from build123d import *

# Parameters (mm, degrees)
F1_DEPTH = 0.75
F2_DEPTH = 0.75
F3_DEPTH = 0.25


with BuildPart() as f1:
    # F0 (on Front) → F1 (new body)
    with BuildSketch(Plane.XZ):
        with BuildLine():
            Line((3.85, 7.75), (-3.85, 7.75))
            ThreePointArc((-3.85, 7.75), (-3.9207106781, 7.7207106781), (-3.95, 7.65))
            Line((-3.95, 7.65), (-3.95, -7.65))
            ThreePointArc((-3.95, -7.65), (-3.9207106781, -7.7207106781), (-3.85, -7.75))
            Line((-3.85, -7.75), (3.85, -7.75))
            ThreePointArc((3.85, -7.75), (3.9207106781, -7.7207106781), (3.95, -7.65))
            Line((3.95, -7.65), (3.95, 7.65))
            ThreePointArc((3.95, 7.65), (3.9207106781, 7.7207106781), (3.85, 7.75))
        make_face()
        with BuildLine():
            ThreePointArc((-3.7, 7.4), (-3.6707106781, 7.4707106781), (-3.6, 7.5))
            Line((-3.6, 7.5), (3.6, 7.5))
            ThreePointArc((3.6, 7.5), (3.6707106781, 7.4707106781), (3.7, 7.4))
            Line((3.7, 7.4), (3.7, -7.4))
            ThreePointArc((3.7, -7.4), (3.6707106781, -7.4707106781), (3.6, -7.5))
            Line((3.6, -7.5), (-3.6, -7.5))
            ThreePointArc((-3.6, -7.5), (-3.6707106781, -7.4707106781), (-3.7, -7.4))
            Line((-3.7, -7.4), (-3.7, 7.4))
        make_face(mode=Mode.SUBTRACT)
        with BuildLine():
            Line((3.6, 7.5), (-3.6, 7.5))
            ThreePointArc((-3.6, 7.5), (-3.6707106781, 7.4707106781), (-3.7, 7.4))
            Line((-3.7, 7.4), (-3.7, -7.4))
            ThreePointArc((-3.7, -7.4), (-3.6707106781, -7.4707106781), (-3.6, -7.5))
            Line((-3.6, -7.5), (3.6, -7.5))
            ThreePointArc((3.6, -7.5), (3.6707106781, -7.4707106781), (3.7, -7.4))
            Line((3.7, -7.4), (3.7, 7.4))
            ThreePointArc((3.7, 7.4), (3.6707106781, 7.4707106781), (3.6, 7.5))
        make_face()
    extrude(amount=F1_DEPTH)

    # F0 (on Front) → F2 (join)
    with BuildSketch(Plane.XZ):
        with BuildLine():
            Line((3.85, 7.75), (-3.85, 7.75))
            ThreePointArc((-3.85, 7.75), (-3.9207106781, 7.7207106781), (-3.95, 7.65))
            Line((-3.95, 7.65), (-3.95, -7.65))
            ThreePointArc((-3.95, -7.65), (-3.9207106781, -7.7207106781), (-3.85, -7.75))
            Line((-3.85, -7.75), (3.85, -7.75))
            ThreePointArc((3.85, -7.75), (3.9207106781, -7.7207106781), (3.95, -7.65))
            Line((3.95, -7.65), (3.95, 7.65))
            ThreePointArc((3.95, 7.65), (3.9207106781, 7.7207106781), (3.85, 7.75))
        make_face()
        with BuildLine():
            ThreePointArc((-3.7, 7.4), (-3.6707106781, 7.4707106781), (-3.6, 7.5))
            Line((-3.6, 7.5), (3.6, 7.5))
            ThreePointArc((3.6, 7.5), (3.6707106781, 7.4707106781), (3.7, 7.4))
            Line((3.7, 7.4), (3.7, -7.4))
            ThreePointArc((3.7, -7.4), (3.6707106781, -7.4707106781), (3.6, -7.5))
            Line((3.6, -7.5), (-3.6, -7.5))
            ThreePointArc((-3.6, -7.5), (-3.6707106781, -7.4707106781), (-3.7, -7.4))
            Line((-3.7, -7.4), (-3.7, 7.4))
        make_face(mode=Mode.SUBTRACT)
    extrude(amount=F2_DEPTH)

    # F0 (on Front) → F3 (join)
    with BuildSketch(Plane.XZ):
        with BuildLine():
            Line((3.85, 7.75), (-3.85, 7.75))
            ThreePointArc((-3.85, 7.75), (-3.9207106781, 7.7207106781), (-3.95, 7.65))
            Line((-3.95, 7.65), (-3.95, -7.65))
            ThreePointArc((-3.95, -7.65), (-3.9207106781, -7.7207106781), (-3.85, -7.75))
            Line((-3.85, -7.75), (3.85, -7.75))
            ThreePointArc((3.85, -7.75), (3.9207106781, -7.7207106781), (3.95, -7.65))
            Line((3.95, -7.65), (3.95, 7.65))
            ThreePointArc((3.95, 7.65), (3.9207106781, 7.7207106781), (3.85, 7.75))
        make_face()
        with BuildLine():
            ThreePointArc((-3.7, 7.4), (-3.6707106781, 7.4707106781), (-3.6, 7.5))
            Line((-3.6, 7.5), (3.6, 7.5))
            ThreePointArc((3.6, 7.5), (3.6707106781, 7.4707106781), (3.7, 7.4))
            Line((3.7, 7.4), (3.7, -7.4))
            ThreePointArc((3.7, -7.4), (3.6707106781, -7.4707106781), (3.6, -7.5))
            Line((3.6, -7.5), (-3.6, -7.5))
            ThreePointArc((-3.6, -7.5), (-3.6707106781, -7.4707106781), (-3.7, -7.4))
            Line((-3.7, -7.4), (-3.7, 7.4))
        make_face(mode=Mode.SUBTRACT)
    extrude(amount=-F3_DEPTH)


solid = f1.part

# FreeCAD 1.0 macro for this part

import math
import FreeCAD as App
import Part
import Sketcher
Q = App.Units.Quantity

doc = App.newDocument("Part")
params = doc.addObject("Spreadsheet::Sheet", "Params")
for row, (alias, value) in enumerate([
    ("sketch1_radius", "0.1 mm"),
    ("sketch1_width", "7.7 mm"),
    ("sketch1_height", "15.3 mm"),
    ("pad1_length", "0.75 mm"),
    ("sketch2_radius", "0.1 mm"),
    ("sketch2_width", "7.7 mm"),
    ("sketch2_width2", "7.2 mm"),
    ("sketch2_height", "15.3 mm"),
    ("sketch2_height2", "14.8 mm"),
    ("pad2_length", "0.75 mm"),
    ("sketch3_radius", "0.1 mm"),
    ("sketch3_width", "7.7 mm"),
    ("sketch3_width2", "7.2 mm"),
    ("sketch3_height", "15.3 mm"),
    ("sketch3_height2", "14.8 mm"),
    ("pad3_length", "0.25 mm"),
], start=1):
    params.set(f"A{row}", alias)
    params.set(f"B{row}", "=" + value)
    params.setAlias(f"B{row}", alias)

body = doc.addObject("PartDesign::Body", "Body")

# Sketch on XZ plane
sketch1 = doc.addObject("Sketcher::SketchObject", "Sketch")
body.addObject(sketch1)
sketch1.AttachmentSupport = (doc.XZ_Plane, [""])
sketch1.MapMode = "FlatFace"
sketch1.addGeometry(Part.LineSegment(App.Vector(3.85, 7.75, 0), App.Vector(-3.85, 7.75, 0)), False)
sketch1.addGeometry(Part.ArcOfCircle(Part.Circle(App.Vector(-3.85, 7.65, 0), App.Vector(0, 0, 1), 0.1), math.radians(90), math.radians(180)), False)
sketch1.addGeometry(Part.LineSegment(App.Vector(-3.95, 7.65, 0), App.Vector(-3.95, -7.65, 0)), False)
sketch1.addGeometry(Part.ArcOfCircle(Part.Circle(App.Vector(-3.85, -7.65, 0), App.Vector(0, 0, 1), 0.1), math.radians(180), math.radians(270)), False)
sketch1.addGeometry(Part.LineSegment(App.Vector(-3.85, -7.75, 0), App.Vector(3.85, -7.75, 0)), False)
sketch1.addGeometry(Part.ArcOfCircle(Part.Circle(App.Vector(3.85, -7.65, 0), App.Vector(0, 0, 1), 0.1), math.radians(-90), math.radians(0)), False)
sketch1.addGeometry(Part.LineSegment(App.Vector(3.95, -7.65, 0), App.Vector(3.95, 7.65, 0)), False)
sketch1.addGeometry(Part.ArcOfCircle(Part.Circle(App.Vector(3.85, 7.65, 0), App.Vector(0, 0, 1), 0.1), math.radians(0), math.radians(90)), False)
sketch1.addConstraint(Sketcher.Constraint("Tangent", 0, 2, 1, 1))
sketch1.addConstraint(Sketcher.Constraint("Tangent", 1, 2, 2, 1))
sketch1.addConstraint(Sketcher.Constraint("Tangent", 2, 2, 3, 1))
sketch1.addConstraint(Sketcher.Constraint("Tangent", 3, 2, 4, 1))
sketch1.addConstraint(Sketcher.Constraint("Tangent", 4, 2, 5, 1))
sketch1.addConstraint(Sketcher.Constraint("Tangent", 5, 2, 6, 1))
sketch1.addConstraint(Sketcher.Constraint("Tangent", 6, 2, 7, 1))
sketch1.addConstraint(Sketcher.Constraint("Tangent", 7, 2, 0, 1))
sketch1.addConstraint(Sketcher.Constraint("Horizontal", 0))
sketch1.addConstraint(Sketcher.Constraint("Vertical", 2))
sketch1.addConstraint(Sketcher.Constraint("Horizontal", 4))
sketch1.addConstraint(Sketcher.Constraint("Vertical", 6))
sketch1.addConstraint(Sketcher.Constraint("Equal", 1, 3))
sketch1.addConstraint(Sketcher.Constraint("Equal", 3, 5))
sketch1.addConstraint(Sketcher.Constraint("Equal", 5, 7))
sketch1.addConstraint(Sketcher.Constraint("Symmetric", 1, 3, 5, 3, -1, 1))
sketch1.addConstraint(Sketcher.Constraint("Radius", 1, Q("0.1 mm")))
sketch1.addConstraint(Sketcher.Constraint("DistanceX", 0, 2, 0, 1, Q("7.7 mm")))
sketch1.addConstraint(Sketcher.Constraint("DistanceY", 2, 2, 2, 1, Q("15.3 mm")))
sketch1.setExpression("Constraints[16]", "Params.sketch1_radius")
sketch1.setExpression("Constraints[17]", "Params.sketch1_width")
sketch1.setExpression("Constraints[18]", "Params.sketch1_height")
pad1 = doc.addObject("PartDesign::Pad", "Pad")
body.addObject(pad1)
pad1.Profile = sketch1
pad1.setExpression("Length", "Params.pad1_length")

# Sketch on XZ plane
sketch2 = doc.addObject("Sketcher::SketchObject", "Sketch001")
body.addObject(sketch2)
sketch2.AttachmentSupport = (doc.XZ_Plane, [""])
sketch2.MapMode = "FlatFace"
sketch2.addGeometry(Part.LineSegment(App.Vector(3.85, 7.75, 0), App.Vector(-3.85, 7.75, 0)), False)
sketch2.addGeometry(Part.ArcOfCircle(Part.Circle(App.Vector(-3.85, 7.65, 0), App.Vector(0, 0, 1), 0.1), math.radians(90), math.radians(180)), False)
sketch2.addGeometry(Part.LineSegment(App.Vector(-3.95, 7.65, 0), App.Vector(-3.95, -7.65, 0)), False)
sketch2.addGeometry(Part.ArcOfCircle(Part.Circle(App.Vector(-3.85, -7.65, 0), App.Vector(0, 0, 1), 0.1), math.radians(180), math.radians(270)), False)
sketch2.addGeometry(Part.LineSegment(App.Vector(-3.85, -7.75, 0), App.Vector(3.85, -7.75, 0)), False)
sketch2.addGeometry(Part.ArcOfCircle(Part.Circle(App.Vector(3.85, -7.65, 0), App.Vector(0, 0, 1), 0.1), math.radians(-90), math.radians(0)), False)
sketch2.addGeometry(Part.LineSegment(App.Vector(3.95, -7.65, 0), App.Vector(3.95, 7.65, 0)), False)
sketch2.addGeometry(Part.ArcOfCircle(Part.Circle(App.Vector(3.85, 7.65, 0), App.Vector(0, 0, 1), 0.1), math.radians(0), math.radians(90)), False)
sketch2.addGeometry(Part.LineSegment(App.Vector(-3.7, -7.4, 0), App.Vector(-3.7, 7.4, 0)), False)
sketch2.addGeometry(Part.ArcOfCircle(Part.Circle(App.Vector(-3.6, 7.4, 0), App.Vector(0, 0, 1), 0.1), math.radians(90), math.radians(180)), False)
sketch2.addGeometry(Part.LineSegment(App.Vector(-3.6, 7.5, 0), App.Vector(3.6, 7.5, 0)), False)
sketch2.addGeometry(Part.ArcOfCircle(Part.Circle(App.Vector(3.6, 7.4, 0), App.Vector(0, 0, 1), 0.1), math.radians(0), math.radians(90)), False)
sketch2.addGeometry(Part.LineSegment(App.Vector(3.7, 7.4, 0), App.Vector(3.7, -7.4, 0)), False)
sketch2.addGeometry(Part.ArcOfCircle(Part.Circle(App.Vector(3.6, -7.4, 0), App.Vector(0, 0, 1), 0.1), math.radians(-90), math.radians(0)), False)
sketch2.addGeometry(Part.LineSegment(App.Vector(3.6, -7.5, 0), App.Vector(-3.6, -7.5, 0)), False)
sketch2.addGeometry(Part.ArcOfCircle(Part.Circle(App.Vector(-3.6, -7.4, 0), App.Vector(0, 0, 1), 0.1), math.radians(180), math.radians(270)), False)
sketch2.addConstraint(Sketcher.Constraint("Tangent", 0, 2, 1, 1))
sketch2.addConstraint(Sketcher.Constraint("Tangent", 1, 2, 2, 1))
sketch2.addConstraint(Sketcher.Constraint("Tangent", 2, 2, 3, 1))
sketch2.addConstraint(Sketcher.Constraint("Tangent", 3, 2, 4, 1))
sketch2.addConstraint(Sketcher.Constraint("Tangent", 4, 2, 5, 1))
sketch2.addConstraint(Sketcher.Constraint("Tangent", 5, 2, 6, 1))
sketch2.addConstraint(Sketcher.Constraint("Tangent", 6, 2, 7, 1))
sketch2.addConstraint(Sketcher.Constraint("Tangent", 7, 2, 0, 1))
sketch2.addConstraint(Sketcher.Constraint("Tangent", 8, 2, 9, 2))
sketch2.addConstraint(Sketcher.Constraint("Tangent", 9, 1, 10, 1))
sketch2.addConstraint(Sketcher.Constraint("Tangent", 10, 2, 11, 2))
sketch2.addConstraint(Sketcher.Constraint("Tangent", 11, 1, 12, 1))
sketch2.addConstraint(Sketcher.Constraint("Tangent", 12, 2, 13, 2))
sketch2.addConstraint(Sketcher.Constraint("Tangent", 13, 1, 14, 1))
sketch2.addConstraint(Sketcher.Constraint("Tangent", 14, 2, 15, 2))
sketch2.addConstraint(Sketcher.Constraint("Tangent", 15, 1, 8, 1))
sketch2.addConstraint(Sketcher.Constraint("Horizontal", 0))
sketch2.addConstraint(Sketcher.Constraint("Vertical", 2))
sketch2.addConstraint(Sketcher.Constraint("Horizontal", 4))
sketch2.addConstraint(Sketcher.Constraint("Vertical", 6))
sketch2.addConstraint(Sketcher.Constraint("Vertical", 8))
sketch2.addConstraint(Sketcher.Constraint("Horizontal", 10))
sketch2.addConstraint(Sketcher.Constraint("Vertical", 12))
sketch2.addConstraint(Sketcher.Constraint("Horizontal", 14))
sketch2.addConstraint(Sketcher.Constraint("Equal", 1, 3))
sketch2.addConstraint(Sketcher.Constraint("Equal", 3, 5))
sketch2.addConstraint(Sketcher.Constraint("Equal", 5, 7))
sketch2.addConstraint(Sketcher.Constraint("Equal", 7, 9))
sketch2.addConstraint(Sketcher.Constraint("Equal", 9, 11))
sketch2.addConstraint(Sketcher.Constraint("Equal", 11, 13))
sketch2.addConstraint(Sketcher.Constraint("Equal", 13, 15))
sketch2.addConstraint(Sketcher.Constraint("Symmetric", 1, 3, 5, 3, -1, 1))
sketch2.addConstraint(Sketcher.Constraint("Symmetric", 9, 3, 13, 3, -1, 1))
sketch2.addConstraint(Sketcher.Constraint("Radius", 1, Q("0.1 mm")))
sketch2.addConstraint(Sketcher.Constraint("DistanceX", 0, 2, 0, 1, Q("7.7 mm")))
sketch2.addConstraint(Sketcher.Constraint("DistanceX", 10, 1, 10, 2, Q("7.2 mm")))
sketch2.addConstraint(Sketcher.Constraint("DistanceY", 2, 2, 2, 1, Q("15.3 mm")))
sketch2.addConstraint(Sketcher.Constraint("DistanceY", 8, 1, 8, 2, Q("14.8 mm")))
sketch2.setExpression("Constraints[33]", "Params.sketch2_radius")
sketch2.setExpression("Constraints[34]", "Params.sketch2_width")
sketch2.setExpression("Constraints[35]", "Params.sketch2_width2")
sketch2.setExpression("Constraints[36]", "Params.sketch2_height")
sketch2.setExpression("Constraints[37]", "Params.sketch2_height2")
pad2 = doc.addObject("PartDesign::Pad", "Pad001")
body.addObject(pad2)
pad2.Profile = sketch2
pad2.setExpression("Length", "Params.pad2_length")

# Sketch on XZ plane
sketch3 = doc.addObject("Sketcher::SketchObject", "Sketch002")
body.addObject(sketch3)
sketch3.AttachmentSupport = (doc.XZ_Plane, [""])
sketch3.MapMode = "FlatFace"
sketch3.addGeometry(Part.LineSegment(App.Vector(3.85, 7.75, 0), App.Vector(-3.85, 7.75, 0)), False)
sketch3.addGeometry(Part.ArcOfCircle(Part.Circle(App.Vector(-3.85, 7.65, 0), App.Vector(0, 0, 1), 0.1), math.radians(90), math.radians(180)), False)
sketch3.addGeometry(Part.LineSegment(App.Vector(-3.95, 7.65, 0), App.Vector(-3.95, -7.65, 0)), False)
sketch3.addGeometry(Part.ArcOfCircle(Part.Circle(App.Vector(-3.85, -7.65, 0), App.Vector(0, 0, 1), 0.1), math.radians(180), math.radians(270)), False)
sketch3.addGeometry(Part.LineSegment(App.Vector(-3.85, -7.75, 0), App.Vector(3.85, -7.75, 0)), False)
sketch3.addGeometry(Part.ArcOfCircle(Part.Circle(App.Vector(3.85, -7.65, 0), App.Vector(0, 0, 1), 0.1), math.radians(-90), math.radians(0)), False)
sketch3.addGeometry(Part.LineSegment(App.Vector(3.95, -7.65, 0), App.Vector(3.95, 7.65, 0)), False)
sketch3.addGeometry(Part.ArcOfCircle(Part.Circle(App.Vector(3.85, 7.65, 0), App.Vector(0, 0, 1), 0.1), math.radians(0), math.radians(90)), False)
sketch3.addGeometry(Part.LineSegment(App.Vector(-3.7, -7.4, 0), App.Vector(-3.7, 7.4, 0)), False)
sketch3.addGeometry(Part.ArcOfCircle(Part.Circle(App.Vector(-3.6, 7.4, 0), App.Vector(0, 0, 1), 0.1), math.radians(90), math.radians(180)), False)
sketch3.addGeometry(Part.LineSegment(App.Vector(-3.6, 7.5, 0), App.Vector(3.6, 7.5, 0)), False)
sketch3.addGeometry(Part.ArcOfCircle(Part.Circle(App.Vector(3.6, 7.4, 0), App.Vector(0, 0, 1), 0.1), math.radians(0), math.radians(90)), False)
sketch3.addGeometry(Part.LineSegment(App.Vector(3.7, 7.4, 0), App.Vector(3.7, -7.4, 0)), False)
sketch3.addGeometry(Part.ArcOfCircle(Part.Circle(App.Vector(3.6, -7.4, 0), App.Vector(0, 0, 1), 0.1), math.radians(-90), math.radians(0)), False)
sketch3.addGeometry(Part.LineSegment(App.Vector(3.6, -7.5, 0), App.Vector(-3.6, -7.5, 0)), False)
sketch3.addGeometry(Part.ArcOfCircle(Part.Circle(App.Vector(-3.6, -7.4, 0), App.Vector(0, 0, 1), 0.1), math.radians(180), math.radians(270)), False)
sketch3.addConstraint(Sketcher.Constraint("Tangent", 0, 2, 1, 1))
sketch3.addConstraint(Sketcher.Constraint("Tangent", 1, 2, 2, 1))
sketch3.addConstraint(Sketcher.Constraint("Tangent", 2, 2, 3, 1))
sketch3.addConstraint(Sketcher.Constraint("Tangent", 3, 2, 4, 1))
sketch3.addConstraint(Sketcher.Constraint("Tangent", 4, 2, 5, 1))
sketch3.addConstraint(Sketcher.Constraint("Tangent", 5, 2, 6, 1))
sketch3.addConstraint(Sketcher.Constraint("Tangent", 6, 2, 7, 1))
sketch3.addConstraint(Sketcher.Constraint("Tangent", 7, 2, 0, 1))
sketch3.addConstraint(Sketcher.Constraint("Tangent", 8, 2, 9, 2))
sketch3.addConstraint(Sketcher.Constraint("Tangent", 9, 1, 10, 1))
sketch3.addConstraint(Sketcher.Constraint("Tangent", 10, 2, 11, 2))
sketch3.addConstraint(Sketcher.Constraint("Tangent", 11, 1, 12, 1))
sketch3.addConstraint(Sketcher.Constraint("Tangent", 12, 2, 13, 2))
sketch3.addConstraint(Sketcher.Constraint("Tangent", 13, 1, 14, 1))
sketch3.addConstraint(Sketcher.Constraint("Tangent", 14, 2, 15, 2))
sketch3.addConstraint(Sketcher.Constraint("Tangent", 15, 1, 8, 1))
sketch3.addConstraint(Sketcher.Constraint("Horizontal", 0))
sketch3.addConstraint(Sketcher.Constraint("Vertical", 2))
sketch3.addConstraint(Sketcher.Constraint("Horizontal", 4))
sketch3.addConstraint(Sketcher.Constraint("Vertical", 6))
sketch3.addConstraint(Sketcher.Constraint("Vertical", 8))
sketch3.addConstraint(Sketcher.Constraint("Horizontal", 10))
sketch3.addConstraint(Sketcher.Constraint("Vertical", 12))
sketch3.addConstraint(Sketcher.Constraint("Horizontal", 14))
sketch3.addConstraint(Sketcher.Constraint("Equal", 1, 3))
sketch3.addConstraint(Sketcher.Constraint("Equal", 3, 5))
sketch3.addConstraint(Sketcher.Constraint("Equal", 5, 7))
sketch3.addConstraint(Sketcher.Constraint("Equal", 7, 9))
sketch3.addConstraint(Sketcher.Constraint("Equal", 9, 11))
sketch3.addConstraint(Sketcher.Constraint("Equal", 11, 13))
sketch3.addConstraint(Sketcher.Constraint("Equal", 13, 15))
sketch3.addConstraint(Sketcher.Constraint("Symmetric", 1, 3, 5, 3, -1, 1))
sketch3.addConstraint(Sketcher.Constraint("Symmetric", 9, 3, 13, 3, -1, 1))
sketch3.addConstraint(Sketcher.Constraint("Radius", 1, Q("0.1 mm")))
sketch3.addConstraint(Sketcher.Constraint("DistanceX", 0, 2, 0, 1, Q("7.7 mm")))
sketch3.addConstraint(Sketcher.Constraint("DistanceX", 10, 1, 10, 2, Q("7.2 mm")))
sketch3.addConstraint(Sketcher.Constraint("DistanceY", 2, 2, 2, 1, Q("15.3 mm")))
sketch3.addConstraint(Sketcher.Constraint("DistanceY", 8, 1, 8, 2, Q("14.8 mm")))
sketch3.setExpression("Constraints[33]", "Params.sketch3_radius")
sketch3.setExpression("Constraints[34]", "Params.sketch3_width")
sketch3.setExpression("Constraints[35]", "Params.sketch3_width2")
sketch3.setExpression("Constraints[36]", "Params.sketch3_height")
sketch3.setExpression("Constraints[37]", "Params.sketch3_height2")
pad3 = doc.addObject("PartDesign::Pad", "Pad002")
body.addObject(pad3)
pad3.Profile = sketch3
pad3.setExpression("Length", "Params.pad3_length")
pad3.Reversed = True

doc.recompute()
